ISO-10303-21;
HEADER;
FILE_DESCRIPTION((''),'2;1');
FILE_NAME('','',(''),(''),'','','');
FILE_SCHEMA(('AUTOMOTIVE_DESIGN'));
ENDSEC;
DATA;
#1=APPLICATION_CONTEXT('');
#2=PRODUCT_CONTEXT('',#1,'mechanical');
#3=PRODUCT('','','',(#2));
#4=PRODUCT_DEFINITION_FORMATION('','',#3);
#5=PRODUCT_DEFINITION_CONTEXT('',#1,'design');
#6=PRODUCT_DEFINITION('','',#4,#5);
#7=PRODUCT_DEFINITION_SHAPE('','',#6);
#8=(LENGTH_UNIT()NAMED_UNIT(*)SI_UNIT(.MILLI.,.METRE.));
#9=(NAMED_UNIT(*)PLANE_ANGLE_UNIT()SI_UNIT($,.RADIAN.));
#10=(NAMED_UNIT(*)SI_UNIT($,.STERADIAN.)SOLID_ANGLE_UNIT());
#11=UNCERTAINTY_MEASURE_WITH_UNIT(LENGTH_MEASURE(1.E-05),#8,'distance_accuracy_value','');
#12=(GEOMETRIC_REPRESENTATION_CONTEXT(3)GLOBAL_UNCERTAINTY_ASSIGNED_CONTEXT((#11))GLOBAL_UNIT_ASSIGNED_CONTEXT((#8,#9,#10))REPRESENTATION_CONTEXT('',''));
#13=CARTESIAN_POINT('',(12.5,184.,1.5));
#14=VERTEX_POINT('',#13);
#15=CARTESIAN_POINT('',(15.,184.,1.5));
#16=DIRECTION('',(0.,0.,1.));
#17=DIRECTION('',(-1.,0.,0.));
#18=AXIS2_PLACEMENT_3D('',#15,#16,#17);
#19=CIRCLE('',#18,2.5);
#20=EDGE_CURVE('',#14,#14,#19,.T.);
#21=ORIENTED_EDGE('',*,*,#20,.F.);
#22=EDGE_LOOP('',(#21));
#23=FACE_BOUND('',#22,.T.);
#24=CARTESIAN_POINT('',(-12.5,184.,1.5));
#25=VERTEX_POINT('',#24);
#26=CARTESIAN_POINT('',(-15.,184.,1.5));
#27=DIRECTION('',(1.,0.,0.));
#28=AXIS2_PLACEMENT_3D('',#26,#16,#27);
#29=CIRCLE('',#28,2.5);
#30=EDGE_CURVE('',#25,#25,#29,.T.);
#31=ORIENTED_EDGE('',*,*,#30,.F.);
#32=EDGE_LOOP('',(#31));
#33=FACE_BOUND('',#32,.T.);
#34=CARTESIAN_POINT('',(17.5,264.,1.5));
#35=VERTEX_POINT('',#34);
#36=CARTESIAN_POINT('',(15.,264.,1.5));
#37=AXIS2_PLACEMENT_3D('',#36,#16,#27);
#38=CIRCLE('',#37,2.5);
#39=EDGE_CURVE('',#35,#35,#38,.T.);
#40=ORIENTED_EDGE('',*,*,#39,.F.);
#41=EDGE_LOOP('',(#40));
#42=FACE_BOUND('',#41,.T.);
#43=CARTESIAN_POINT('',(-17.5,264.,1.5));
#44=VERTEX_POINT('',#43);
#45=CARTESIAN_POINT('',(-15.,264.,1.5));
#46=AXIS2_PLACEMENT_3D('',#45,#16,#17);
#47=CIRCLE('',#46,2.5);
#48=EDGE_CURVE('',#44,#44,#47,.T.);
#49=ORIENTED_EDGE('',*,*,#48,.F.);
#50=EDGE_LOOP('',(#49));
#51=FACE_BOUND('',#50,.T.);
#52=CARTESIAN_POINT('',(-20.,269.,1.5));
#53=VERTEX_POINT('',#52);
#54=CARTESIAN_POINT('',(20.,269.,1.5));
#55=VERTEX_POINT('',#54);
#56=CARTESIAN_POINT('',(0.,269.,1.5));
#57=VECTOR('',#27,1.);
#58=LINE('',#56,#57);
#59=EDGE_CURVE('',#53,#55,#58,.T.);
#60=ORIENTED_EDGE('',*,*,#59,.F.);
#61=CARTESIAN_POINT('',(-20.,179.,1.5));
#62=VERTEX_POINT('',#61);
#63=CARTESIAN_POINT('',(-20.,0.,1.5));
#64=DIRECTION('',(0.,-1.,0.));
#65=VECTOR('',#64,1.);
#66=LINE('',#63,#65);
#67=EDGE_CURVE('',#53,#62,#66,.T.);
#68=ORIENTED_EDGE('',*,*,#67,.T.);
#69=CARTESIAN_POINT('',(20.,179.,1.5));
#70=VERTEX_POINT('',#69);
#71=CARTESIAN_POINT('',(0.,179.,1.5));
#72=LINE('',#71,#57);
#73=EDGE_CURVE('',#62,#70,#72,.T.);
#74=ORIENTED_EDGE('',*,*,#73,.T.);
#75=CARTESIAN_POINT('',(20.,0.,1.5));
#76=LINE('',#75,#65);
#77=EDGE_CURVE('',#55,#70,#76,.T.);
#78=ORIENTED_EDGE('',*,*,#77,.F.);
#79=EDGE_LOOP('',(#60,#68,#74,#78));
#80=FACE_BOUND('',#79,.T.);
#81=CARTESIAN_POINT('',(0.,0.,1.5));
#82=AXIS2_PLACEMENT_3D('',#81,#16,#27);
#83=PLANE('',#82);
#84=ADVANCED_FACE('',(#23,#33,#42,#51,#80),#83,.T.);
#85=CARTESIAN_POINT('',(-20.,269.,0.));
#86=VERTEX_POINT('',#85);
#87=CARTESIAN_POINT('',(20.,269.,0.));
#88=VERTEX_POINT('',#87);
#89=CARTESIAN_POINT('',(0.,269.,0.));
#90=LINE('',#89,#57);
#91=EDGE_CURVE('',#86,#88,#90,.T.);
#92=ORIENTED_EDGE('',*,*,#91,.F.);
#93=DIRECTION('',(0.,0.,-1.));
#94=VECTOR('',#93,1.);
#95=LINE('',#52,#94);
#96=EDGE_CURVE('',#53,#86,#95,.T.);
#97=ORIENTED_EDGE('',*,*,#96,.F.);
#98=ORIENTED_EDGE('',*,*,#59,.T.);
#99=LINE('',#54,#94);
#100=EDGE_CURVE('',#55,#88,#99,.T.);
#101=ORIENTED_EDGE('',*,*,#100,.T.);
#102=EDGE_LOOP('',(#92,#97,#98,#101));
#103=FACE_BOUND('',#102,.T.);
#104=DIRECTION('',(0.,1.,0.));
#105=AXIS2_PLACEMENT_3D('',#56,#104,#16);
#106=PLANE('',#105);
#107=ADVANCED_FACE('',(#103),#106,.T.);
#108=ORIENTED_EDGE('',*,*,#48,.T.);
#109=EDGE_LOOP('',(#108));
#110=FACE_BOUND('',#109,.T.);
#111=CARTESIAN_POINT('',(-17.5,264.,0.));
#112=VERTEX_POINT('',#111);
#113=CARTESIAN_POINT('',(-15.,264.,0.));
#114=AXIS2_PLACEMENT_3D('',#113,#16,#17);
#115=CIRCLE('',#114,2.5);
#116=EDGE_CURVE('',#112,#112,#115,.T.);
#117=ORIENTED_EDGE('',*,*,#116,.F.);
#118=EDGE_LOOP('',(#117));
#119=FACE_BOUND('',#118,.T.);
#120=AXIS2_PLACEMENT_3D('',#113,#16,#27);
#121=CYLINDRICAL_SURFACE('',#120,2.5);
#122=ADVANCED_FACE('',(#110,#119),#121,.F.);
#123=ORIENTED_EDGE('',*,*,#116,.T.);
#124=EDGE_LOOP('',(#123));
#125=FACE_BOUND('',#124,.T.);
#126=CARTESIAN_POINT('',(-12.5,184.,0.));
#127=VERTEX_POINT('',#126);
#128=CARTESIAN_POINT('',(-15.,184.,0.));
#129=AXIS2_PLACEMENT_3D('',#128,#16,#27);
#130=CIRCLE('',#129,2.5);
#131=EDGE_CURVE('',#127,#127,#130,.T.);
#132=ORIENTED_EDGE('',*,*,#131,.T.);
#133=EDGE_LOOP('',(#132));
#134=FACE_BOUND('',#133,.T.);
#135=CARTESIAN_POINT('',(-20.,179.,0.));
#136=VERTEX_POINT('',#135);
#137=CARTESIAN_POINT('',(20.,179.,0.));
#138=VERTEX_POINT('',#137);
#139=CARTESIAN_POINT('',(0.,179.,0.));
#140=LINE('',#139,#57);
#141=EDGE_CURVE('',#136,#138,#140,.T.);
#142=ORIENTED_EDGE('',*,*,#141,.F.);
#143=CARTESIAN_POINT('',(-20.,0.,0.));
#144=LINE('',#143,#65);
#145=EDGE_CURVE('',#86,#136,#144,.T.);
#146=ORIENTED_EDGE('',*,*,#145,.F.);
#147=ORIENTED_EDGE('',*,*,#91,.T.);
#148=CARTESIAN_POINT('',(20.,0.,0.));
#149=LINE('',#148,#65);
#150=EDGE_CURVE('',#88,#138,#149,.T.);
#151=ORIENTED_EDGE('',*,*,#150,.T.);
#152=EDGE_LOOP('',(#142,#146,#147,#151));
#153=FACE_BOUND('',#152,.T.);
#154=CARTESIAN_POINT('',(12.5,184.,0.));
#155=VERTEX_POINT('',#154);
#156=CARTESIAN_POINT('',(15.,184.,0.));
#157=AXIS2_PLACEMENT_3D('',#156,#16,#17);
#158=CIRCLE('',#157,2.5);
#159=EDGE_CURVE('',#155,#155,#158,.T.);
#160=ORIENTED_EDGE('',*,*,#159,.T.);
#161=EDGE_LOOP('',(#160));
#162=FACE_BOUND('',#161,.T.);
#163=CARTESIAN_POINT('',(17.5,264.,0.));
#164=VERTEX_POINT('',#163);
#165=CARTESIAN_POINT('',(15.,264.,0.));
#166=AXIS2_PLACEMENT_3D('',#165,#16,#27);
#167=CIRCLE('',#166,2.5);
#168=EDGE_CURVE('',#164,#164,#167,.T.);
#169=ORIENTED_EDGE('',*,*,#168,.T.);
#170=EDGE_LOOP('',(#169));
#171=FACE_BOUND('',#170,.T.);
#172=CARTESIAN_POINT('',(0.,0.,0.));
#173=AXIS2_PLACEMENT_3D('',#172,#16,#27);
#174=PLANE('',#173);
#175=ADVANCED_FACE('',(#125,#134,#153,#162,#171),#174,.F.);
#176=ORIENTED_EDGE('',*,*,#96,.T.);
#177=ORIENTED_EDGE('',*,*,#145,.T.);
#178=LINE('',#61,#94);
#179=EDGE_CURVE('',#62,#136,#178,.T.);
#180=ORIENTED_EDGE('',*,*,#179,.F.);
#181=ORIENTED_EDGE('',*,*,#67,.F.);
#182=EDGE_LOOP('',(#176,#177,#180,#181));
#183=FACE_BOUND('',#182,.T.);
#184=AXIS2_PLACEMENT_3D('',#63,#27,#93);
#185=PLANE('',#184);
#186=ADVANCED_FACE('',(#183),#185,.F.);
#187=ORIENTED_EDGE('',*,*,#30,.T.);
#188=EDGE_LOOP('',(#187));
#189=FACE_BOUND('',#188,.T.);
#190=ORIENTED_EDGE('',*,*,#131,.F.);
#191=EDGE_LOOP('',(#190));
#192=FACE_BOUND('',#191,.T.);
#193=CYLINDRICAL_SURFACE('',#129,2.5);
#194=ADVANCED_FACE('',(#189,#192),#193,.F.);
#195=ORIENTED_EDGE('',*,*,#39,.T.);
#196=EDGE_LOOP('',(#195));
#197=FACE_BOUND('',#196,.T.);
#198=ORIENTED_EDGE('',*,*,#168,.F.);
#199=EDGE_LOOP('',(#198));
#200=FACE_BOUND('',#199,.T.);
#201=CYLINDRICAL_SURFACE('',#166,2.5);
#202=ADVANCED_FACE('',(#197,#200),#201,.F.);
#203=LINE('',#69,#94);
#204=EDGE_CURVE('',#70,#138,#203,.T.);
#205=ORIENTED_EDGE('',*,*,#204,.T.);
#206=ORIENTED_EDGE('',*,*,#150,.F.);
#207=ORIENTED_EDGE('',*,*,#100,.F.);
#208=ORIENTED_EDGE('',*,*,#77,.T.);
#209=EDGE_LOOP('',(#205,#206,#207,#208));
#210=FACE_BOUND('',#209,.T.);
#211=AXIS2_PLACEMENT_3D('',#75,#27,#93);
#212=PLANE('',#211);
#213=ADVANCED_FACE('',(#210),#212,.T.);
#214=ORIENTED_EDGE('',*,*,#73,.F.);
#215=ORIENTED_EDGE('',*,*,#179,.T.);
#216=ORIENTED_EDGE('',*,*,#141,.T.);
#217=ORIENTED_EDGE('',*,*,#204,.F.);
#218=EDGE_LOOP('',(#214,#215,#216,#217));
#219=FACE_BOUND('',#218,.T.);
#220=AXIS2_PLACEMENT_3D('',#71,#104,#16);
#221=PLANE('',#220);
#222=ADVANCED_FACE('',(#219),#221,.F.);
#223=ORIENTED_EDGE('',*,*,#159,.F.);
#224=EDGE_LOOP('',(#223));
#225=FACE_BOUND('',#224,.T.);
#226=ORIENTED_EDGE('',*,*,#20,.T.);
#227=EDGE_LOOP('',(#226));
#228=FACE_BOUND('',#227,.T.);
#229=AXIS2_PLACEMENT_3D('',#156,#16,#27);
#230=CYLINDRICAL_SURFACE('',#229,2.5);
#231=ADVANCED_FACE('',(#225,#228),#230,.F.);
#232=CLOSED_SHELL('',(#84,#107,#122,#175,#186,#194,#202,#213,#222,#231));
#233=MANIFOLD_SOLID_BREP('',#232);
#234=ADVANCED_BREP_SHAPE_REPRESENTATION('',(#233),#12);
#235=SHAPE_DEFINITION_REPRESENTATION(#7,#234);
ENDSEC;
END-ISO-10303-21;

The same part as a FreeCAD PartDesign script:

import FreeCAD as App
import Part
import Sketcher

V = App.Vector


def add_polygon(sketch, points):
    """Adds a closed chain of lines whose ends are joined by coincident constraints."""
    first, n = sketch.GeometryCount, len(points)
    for a, b in zip(points, points[1:] + points[:1]):
        sketch.addGeometry(Part.LineSegment(App.Vector(*a, 0), App.Vector(*b, 0)), False)
    for i in range(n):
        sketch.addConstraint(Sketcher.Constraint("Coincident", first + i, 2, first + (i + 1) % n, 1))

doc = App.newDocument("Part")
body = doc.addObject("PartDesign::Body", "Body")

# Sketch on XY plane
sketch1 = body.newObject("Sketcher::SketchObject", "Sketch")
sketch1.AttachmentSupport = (doc.getObject("XY_Plane"), [""])
sketch1.MapMode = "FlatFace"
add_polygon(sketch1, [(-20, 269), (-20, 179), (20, 179), (20, 269)])  # lines 0-3
sketch1.addConstraint([
    Sketcher.Constraint("Vertical", 0),
    Sketcher.Constraint("Horizontal", 1),
    Sketcher.Constraint("Vertical", 2),
    Sketcher.Constraint("Horizontal", 3),
    Sketcher.Constraint("DistanceX", 1, 1, 1, 2, 40.0),
    Sketcher.Constraint("DistanceY", 0, 2, 0, 1, 90.0),
    Sketcher.Constraint("DistanceX", 0, 2, -1, 1, 20.0),
    Sketcher.Constraint("DistanceY", -1, 1, 0, 2, 179.0),
])
pad1 = body.newObject("PartDesign::Pad", "Pad")
pad1.Profile = sketch1
pad1.Length = 1.5

# Sketch on XY plane
sketch2 = body.newObject("Sketcher::SketchObject", "Sketch001")
sketch2.AttachmentSupport = (doc.getObject("XY_Plane"), [""])
sketch2.MapMode = "FlatFace"
sketch2.AttachmentOffset = App.Placement(V(0, 0, 1.5), App.Rotation())
sketch2.addGeometry([
    Part.Circle(V(15, 264, 0), V(0, 0, 1), 2.5),
    Part.Circle(V(15, 184, 0), V(0, 0, 1), 2.5),
    Part.Circle(V(-15, 184, 0), V(0, 0, 1), 2.5),
    Part.Circle(V(-15, 264, 0), V(0, 0, 1), 2.5),
], False)
sketch2.addConstraint([
    Sketcher.Constraint("Equal", 0, 1),
    Sketcher.Constraint("Equal", 1, 2),
    Sketcher.Constraint("Equal", 2, 3),
    Sketcher.Constraint("Symmetric", 1, 3, 2, 3, -2),
    Sketcher.Constraint("Symmetric", 0, 3, 3, 3, -2),
    Sketcher.Constraint("Vertical", 0, 3, 1, 3),
    Sketcher.Constraint("Diameter", 0, 5.0),
    Sketcher.Constraint("DistanceX", -1, 1, 0, 3, 15.0),
    Sketcher.Constraint("DistanceY", -1, 1, 0, 3, 264.0),
    Sketcher.Constraint("DistanceY", -1, 1, 1, 3, 184.0),
])
pocket1 = body.newObject("PartDesign::Pocket", "Pocket")
pocket1.Profile = sketch2
pocket1.Type = "ThroughAll"

doc.recompute()
